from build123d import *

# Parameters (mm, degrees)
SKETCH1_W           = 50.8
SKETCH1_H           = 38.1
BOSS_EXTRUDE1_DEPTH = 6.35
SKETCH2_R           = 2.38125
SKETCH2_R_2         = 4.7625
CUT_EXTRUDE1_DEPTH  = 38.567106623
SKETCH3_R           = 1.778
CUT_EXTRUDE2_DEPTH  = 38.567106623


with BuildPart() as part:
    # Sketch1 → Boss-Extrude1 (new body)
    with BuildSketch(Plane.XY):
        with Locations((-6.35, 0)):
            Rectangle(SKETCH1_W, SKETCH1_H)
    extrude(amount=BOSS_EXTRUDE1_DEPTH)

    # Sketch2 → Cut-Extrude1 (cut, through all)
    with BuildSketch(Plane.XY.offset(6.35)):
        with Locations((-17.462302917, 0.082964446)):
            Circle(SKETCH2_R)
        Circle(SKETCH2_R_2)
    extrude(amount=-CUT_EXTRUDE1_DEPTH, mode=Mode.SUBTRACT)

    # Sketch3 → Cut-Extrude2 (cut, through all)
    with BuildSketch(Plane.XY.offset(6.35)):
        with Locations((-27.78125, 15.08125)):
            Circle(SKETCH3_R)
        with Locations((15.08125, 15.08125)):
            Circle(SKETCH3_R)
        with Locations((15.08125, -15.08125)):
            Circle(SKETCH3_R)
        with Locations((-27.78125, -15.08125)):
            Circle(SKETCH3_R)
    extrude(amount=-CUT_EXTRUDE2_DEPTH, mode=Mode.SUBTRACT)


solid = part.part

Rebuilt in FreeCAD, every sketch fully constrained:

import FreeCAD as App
import Part
import Sketcher
from FreeCAD import Vector
Q = App.Units.Quantity


def add_polygon(sketch, points):
    """Adds a closed chain of lines whose ends are joined by coincident constraints."""
    first, n = sketch.GeometryCount, len(points)
    for a, b in zip(points, points[1:] + points[:1]):
        sketch.addGeometry(Part.LineSegment(App.Vector(*a, 0), App.Vector(*b, 0)), False)
    for i in range(n):
        sketch.addConstraint(Sketcher.Constraint("Coincident", first + i, 2, first + (i + 1) % n, 1))

doc = App.newDocument("Part")
body = doc.addObject("PartDesign::Body", "Body")

sketch1 = body.newObject("Sketcher::SketchObject", "Sketch")
sketch1.AttachmentSupport = (doc.getObject("XY_Plane"), [""])
sketch1.MapMode = "FlatFace"
add_polygon(sketch1, [(-31.75, 19.05), (-31.75, -19.05), (19.05, -19.05), (19.05, 19.05)])
sketch1.addConstraint(Sketcher.Constraint("Vertical", 0))
sketch1.addConstraint(Sketcher.Constraint("Horizontal", 1))
sketch1.addConstraint(Sketcher.Constraint("Vertical", 2))
sketch1.addConstraint(Sketcher.Constraint("Horizontal", 3))
sketch1.addConstraint(Sketcher.Constraint("DistanceX", 1, 1, 1, 2, Q("2 in")))
sketch1.addConstraint(Sketcher.Constraint("DistanceY", 0, 2, 0, 1, Q("1.5 in")))
sketch1.addConstraint(Sketcher.Constraint("DistanceX", 0, 2, -1, 1, Q("1.25 in")))
sketch1.addConstraint(Sketcher.Constraint("DistanceY", 0, 2, -1, 1, Q("0.75 in")))
pad1 = body.newObject("PartDesign::Pad", "Pad")
pad1.Profile = sketch1
pad1.Length = Q("0.25 in")

sketch2 = body.newObject("Sketcher::SketchObject", "Sketch001")
sketch2.AttachmentSupport = (doc.getObject("XY_Plane"), [""])
sketch2.MapMode = "FlatFace"
sketch2.AttachmentOffset = App.Placement(Vector(0, 0, 0.25 * 25.4), App.Rotation())
sketch2.addGeometry(Part.Circle(Vector(-17.462303, 0.082964, 0), Vector(0, 0, 1), 2.38125), False)
sketch2.addGeometry(Part.Circle(Vector(0, 0, 0), Vector(0, 0, 1), 4.7625), False)
sketch2.addConstraint(Sketcher.Constraint("Coincident", 1, 3, -1, 1))
sketch2.addConstraint(Sketcher.Constraint("Diameter", 0, Q("0.1875 in")))
sketch2.addConstraint(Sketcher.Constraint("Diameter", 1, Q("0.375 in")))
sketch2.addConstraint(Sketcher.Constraint("DistanceX", 0, 3, -1, 1, Q("17.462303 mm")))
sketch2.addConstraint(Sketcher.Constraint("DistanceY", -1, 1, 0, 3, Q("0.082964 mm")))
pocket1 = body.newObject("PartDesign::Pocket", "Pocket")
pocket1.Profile = sketch2
pocket1.Type = "ThroughAll"

sketch3 = body.newObject("Sketcher::SketchObject", "Sketch002")
sketch3.AttachmentSupport = (doc.getObject("XY_Plane"), [""])
sketch3.MapMode = "FlatFace"
sketch3.AttachmentOffset = App.Placement(Vector(0, 0, 0.25 * 25.4), App.Rotation())
sketch3.addGeometry(Part.Circle(Vector(-27.78125, 15.08125, 0), Vector(0, 0, 1), 1.778), False)
sketch3.addGeometry(Part.Circle(Vector(15.08125, 15.08125, 0), Vector(0, 0, 1), 1.778), False)
sketch3.addGeometry(Part.Circle(Vector(15.08125, -15.08125, 0), Vector(0, 0, 1), 1.778), False)
sketch3.addGeometry(Part.Circle(Vector(-27.78125, -15.08125, 0), Vector(0, 0, 1), 1.778), False)
sketch3.addConstraint(Sketcher.Constraint("Equal", 0, 1))
sketch3.addConstraint(Sketcher.Constraint("Equal", 1, 2))
sketch3.addConstraint(Sketcher.Constraint("Equal", 2, 3))
sketch3.addConstraint(Sketcher.Constraint("Symmetric", 1, 3, 2, 3, -1))
sketch3.addConstraint(Sketcher.Constraint("Symmetric", 0, 3, 3, 3, -1))
sketch3.addConstraint(Sketcher.Constraint("Horizontal", 0, 3, 1, 3))
sketch3.addConstraint(Sketcher.Constraint("Diameter", 0, Q("0.14 in")))
sketch3.addConstraint(Sketcher.Constraint("DistanceX", 0, 3, -1, 1, Q("1.09375 in")))
sketch3.addConstraint(Sketcher.Constraint("DistanceY", -1, 1, 0, 3, Q("0.59375 in")))
sketch3.addConstraint(Sketcher.Constraint("DistanceX", -1, 1, 1, 3, Q("0.59375 in")))
pocket2 = body.newObject("PartDesign::Pocket", "Pocket001")
pocket2.Profile = sketch3
pocket2.Type = "ThroughAll"

doc.recompute()
